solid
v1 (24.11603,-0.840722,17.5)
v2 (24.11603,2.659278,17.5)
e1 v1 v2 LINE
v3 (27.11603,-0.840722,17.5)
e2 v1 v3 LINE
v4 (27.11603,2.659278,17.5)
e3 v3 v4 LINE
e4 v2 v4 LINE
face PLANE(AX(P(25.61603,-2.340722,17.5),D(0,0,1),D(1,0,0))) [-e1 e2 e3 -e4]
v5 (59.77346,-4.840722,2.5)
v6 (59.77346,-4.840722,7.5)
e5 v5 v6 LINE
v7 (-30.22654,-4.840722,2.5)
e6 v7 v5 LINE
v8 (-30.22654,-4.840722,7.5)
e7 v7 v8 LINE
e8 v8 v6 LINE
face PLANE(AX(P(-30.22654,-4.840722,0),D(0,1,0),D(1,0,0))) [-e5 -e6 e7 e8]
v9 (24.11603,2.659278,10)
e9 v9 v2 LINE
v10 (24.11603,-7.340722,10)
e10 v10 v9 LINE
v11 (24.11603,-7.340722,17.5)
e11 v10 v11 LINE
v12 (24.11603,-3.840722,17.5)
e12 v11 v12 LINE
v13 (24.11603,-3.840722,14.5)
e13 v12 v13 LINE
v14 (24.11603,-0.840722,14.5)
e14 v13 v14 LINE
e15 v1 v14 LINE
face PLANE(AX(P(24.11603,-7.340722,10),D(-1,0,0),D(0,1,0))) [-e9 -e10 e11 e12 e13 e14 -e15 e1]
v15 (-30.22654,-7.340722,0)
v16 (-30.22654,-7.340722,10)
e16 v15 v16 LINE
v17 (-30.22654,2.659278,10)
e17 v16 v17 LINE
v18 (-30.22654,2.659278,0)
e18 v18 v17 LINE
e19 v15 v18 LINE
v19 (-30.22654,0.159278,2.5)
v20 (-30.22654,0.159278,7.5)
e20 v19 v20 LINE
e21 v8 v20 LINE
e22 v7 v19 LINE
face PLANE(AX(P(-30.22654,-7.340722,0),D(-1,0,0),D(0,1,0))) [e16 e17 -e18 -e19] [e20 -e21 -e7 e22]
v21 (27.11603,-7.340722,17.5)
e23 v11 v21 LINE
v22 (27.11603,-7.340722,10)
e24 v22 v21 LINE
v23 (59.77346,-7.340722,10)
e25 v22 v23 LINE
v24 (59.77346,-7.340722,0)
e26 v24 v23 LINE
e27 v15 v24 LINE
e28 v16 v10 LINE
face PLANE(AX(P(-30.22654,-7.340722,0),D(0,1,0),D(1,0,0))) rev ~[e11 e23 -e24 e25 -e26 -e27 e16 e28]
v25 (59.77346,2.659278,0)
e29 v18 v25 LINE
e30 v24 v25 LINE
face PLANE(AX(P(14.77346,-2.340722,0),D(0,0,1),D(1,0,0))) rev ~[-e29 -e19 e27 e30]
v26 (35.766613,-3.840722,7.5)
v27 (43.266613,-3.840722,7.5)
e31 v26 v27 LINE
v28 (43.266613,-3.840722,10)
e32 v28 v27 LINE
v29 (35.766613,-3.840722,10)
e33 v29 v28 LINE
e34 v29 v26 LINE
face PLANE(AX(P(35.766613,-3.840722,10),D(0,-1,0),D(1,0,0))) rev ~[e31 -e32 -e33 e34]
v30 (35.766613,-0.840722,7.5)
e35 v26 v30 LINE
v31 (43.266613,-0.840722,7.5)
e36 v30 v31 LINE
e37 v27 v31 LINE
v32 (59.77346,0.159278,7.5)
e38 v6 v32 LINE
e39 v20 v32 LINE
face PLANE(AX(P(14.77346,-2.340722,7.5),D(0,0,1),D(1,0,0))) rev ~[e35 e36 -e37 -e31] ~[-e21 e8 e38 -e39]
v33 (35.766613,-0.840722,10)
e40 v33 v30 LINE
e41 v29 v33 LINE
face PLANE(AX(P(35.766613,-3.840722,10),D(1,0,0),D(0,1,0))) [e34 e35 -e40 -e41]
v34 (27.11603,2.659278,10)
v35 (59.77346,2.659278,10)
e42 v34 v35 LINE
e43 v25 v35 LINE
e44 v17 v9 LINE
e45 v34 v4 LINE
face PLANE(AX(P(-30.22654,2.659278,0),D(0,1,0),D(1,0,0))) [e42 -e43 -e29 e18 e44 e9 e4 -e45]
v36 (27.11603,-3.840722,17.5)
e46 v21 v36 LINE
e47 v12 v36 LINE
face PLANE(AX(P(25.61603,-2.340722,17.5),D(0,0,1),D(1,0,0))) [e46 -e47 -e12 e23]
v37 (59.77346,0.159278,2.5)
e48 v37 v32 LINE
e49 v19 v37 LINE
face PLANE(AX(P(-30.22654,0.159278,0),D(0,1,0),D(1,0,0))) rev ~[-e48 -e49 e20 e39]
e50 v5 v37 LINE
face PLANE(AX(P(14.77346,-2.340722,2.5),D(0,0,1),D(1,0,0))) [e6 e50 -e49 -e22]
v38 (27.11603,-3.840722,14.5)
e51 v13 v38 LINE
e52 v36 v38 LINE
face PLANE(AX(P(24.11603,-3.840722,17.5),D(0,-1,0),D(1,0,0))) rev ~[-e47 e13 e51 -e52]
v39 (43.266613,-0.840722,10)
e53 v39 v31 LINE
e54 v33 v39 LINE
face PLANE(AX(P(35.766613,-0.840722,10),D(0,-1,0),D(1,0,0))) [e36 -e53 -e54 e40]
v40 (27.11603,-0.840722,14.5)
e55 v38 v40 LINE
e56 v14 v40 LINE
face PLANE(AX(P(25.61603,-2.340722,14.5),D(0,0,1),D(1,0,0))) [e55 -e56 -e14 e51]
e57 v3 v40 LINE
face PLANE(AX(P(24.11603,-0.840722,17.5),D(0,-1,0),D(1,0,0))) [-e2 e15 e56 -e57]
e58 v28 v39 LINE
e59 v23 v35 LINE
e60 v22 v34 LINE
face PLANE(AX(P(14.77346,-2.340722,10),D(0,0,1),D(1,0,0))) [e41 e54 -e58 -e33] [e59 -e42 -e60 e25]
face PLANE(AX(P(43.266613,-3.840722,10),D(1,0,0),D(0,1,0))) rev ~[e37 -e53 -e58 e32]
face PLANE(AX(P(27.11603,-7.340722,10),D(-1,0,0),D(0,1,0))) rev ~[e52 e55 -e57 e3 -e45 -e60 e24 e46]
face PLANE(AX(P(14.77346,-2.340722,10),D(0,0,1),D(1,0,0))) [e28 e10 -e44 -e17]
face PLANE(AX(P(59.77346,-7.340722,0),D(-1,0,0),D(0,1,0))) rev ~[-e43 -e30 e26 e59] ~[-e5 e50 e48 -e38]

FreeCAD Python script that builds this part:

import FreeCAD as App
import Part
import Sketcher
from FreeCAD import Vector
Q = App.Units.Quantity


def faces_at(feature, points):
    """Names of the faces that lie closest to the given points."""
    faces = feature.Shape.Faces
    near = lambda p: min(range(len(faces)), key=lambda i: faces[i].distToShape(Part.Vertex(*p))[0])
    return sorted({f"Face{near(p) + 1}" for p in points})


def add_polygon(sketch, points):
    """Adds a closed chain of lines whose ends are joined by coincident constraints."""
    first, n = sketch.GeometryCount, len(points)
    for a, b in zip(points, points[1:] + points[:1]):
        sketch.addGeometry(Part.LineSegment(App.Vector(*a, 0), App.Vector(*b, 0)), False)
    for i in range(n):
        sketch.addConstraint(Sketcher.Constraint("Coincident", first + i, 2, first + (i + 1) % n, 1))

doc = App.newDocument("Part")
params = doc.addObject("Spreadsheet::Sheet", "Params")
for row, (alias, value) in enumerate([
    ("sketch1_width", "90 mm"),
    ("sketch1_height", "10 mm"),
    ("pad1_length", "10 mm"),
    ("thickness_wall", "2.5 mm"),
    ("sketch2_height", "3 mm"),
    ("sketch2_width", "7.5 mm"),
    ("pocket1_length", "2.5 mm"),
    ("sketch3_width", "3 mm"),
    ("sketch3_height", "10 mm"),
    ("pad2_length", "7.5 mm"),
    ("sketch4_width", "3 mm"),
    ("pocket2_length", "3 mm"),
], start=1):
    params.set(f"A{row}", alias)
    params.set(f"B{row}", "=" + value)
    params.setAlias(f"B{row}", alias)

body = doc.addObject("PartDesign::Body", "Body")

# Sketch on XY plane
sketch1 = body.newObject("Sketcher::SketchObject", "Sketch")
sketch1.AttachmentSupport = (doc.getObject("XY_Plane"), [""])
sketch1.MapMode = "FlatFace"
add_polygon(sketch1, [(-30, 3), (-30, -7), (60, -7), (60, 3)])  # lines 0-3
sketch1.addConstraint([
    Sketcher.Constraint("Vertical", 0),
    Sketcher.Constraint("Horizontal", 1),
    Sketcher.Constraint("Vertical", 2),
    Sketcher.Constraint("Horizontal", 3),
    Sketcher.Constraint("DistanceX", 1, 1, 1, 2, Q("90 mm")),
    Sketcher.Constraint("DistanceY", 0, 2, 0, 1, Q("10 mm")),
    Sketcher.Constraint("DistanceX", 0, 2, -1, 1, Q("30.22654 mm")),
    Sketcher.Constraint("DistanceY", -1, 1, 2, 2, Q("2.659278 mm")),
])
sketch1.setExpression("Constraints[8]", "Params.sketch1_width")
sketch1.setExpression("Constraints[9]", "Params.sketch1_height")
pad1 = body.newObject("PartDesign::Pad", "Pad")
pad1.Profile = sketch1
pad1.setExpression("Length", "Params.pad1_length")
doc.recompute()

thickness = body.newObject("PartDesign::Thickness", "Thickness")
thickness.Base = (pad1, faces_at(pad1, [(59.773, -2.341, 5), (-30.227, -2.341, 5)]))
thickness.setExpression("Value", "Params.thickness_wall")
thickness.Reversed = True
thickness.Join = "Arc"

# Sketch on XY plane
sketch2 = body.newObject("Sketcher::SketchObject", "Sketch001")
sketch2.AttachmentSupport = (doc.getObject("XY_Plane"), [""])
sketch2.MapMode = "FlatFace"
sketch2.AttachmentOffset = App.Placement(Vector(0, 0, 10), App.Rotation())
add_polygon(sketch2, [(35.8, -0.8), (35.8, -3.8), (43.3, -3.8), (43.3, -0.8)])  # lines 0-3
sketch2.addConstraint([
    Sketcher.Constraint("Vertical", 0),
    Sketcher.Constraint("Horizontal", 1),
    Sketcher.Constraint("Vertical", 2),
    Sketcher.Constraint("Horizontal", 3),
    Sketcher.Constraint("DistanceY", 0, 2, 0, 1, Q("3 mm")),
    Sketcher.Constraint("DistanceX", 1, 1, 1, 2, Q("7.5 mm")),
    Sketcher.Constraint("DistanceY", 0, 2, -1, 1, Q("3.840722 mm")),
    Sketcher.Constraint("DistanceX", -1, 1, 0, 2, Q("35.766613 mm")),
])
sketch2.setExpression("Constraints[8]", "Params.sketch2_height")
sketch2.setExpression("Constraints[9]", "Params.sketch2_width")
pocket1 = body.newObject("PartDesign::Pocket", "Pocket")
pocket1.Profile = sketch2
pocket1.setExpression("Length", "Params.pocket1_length")

# Sketch on XY plane
sketch3 = body.newObject("Sketcher::SketchObject", "Sketch002")
sketch3.AttachmentSupport = (doc.getObject("XY_Plane"), [""])
sketch3.MapMode = "FlatFace"
sketch3.AttachmentOffset = App.Placement(Vector(0, 0, 10), App.Rotation())
add_polygon(sketch3, [(24.1, 2.7), (24.1, -7.3), (27.1, -7.3), (27.1, 2.7)])  # lines 0-3
sketch3.addConstraint([
    Sketcher.Constraint("Vertical", 0),
    Sketcher.Constraint("Horizontal", 1),
    Sketcher.Constraint("Vertical", 2),
    Sketcher.Constraint("Horizontal", 3),
    Sketcher.Constraint("DistanceX", 1, 1, 1, 2, Q("3 mm")),
    Sketcher.Constraint("DistanceY", 0, 2, 0, 1, Q("10 mm")),
    Sketcher.Constraint("DistanceX", -1, 1, 0, 2, Q("24.11603 mm")),
    Sketcher.Constraint("DistanceY", -1, 1, 2, 2, Q("2.659278 mm")),
])
sketch3.setExpression("Constraints[8]", "Params.sketch3_width")
sketch3.setExpression("Constraints[9]", "Params.sketch3_height")
pad2 = body.newObject("PartDesign::Pad", "Pad001")
pad2.Profile = sketch3
pad2.setExpression("Length", "Params.pad2_length")

# Sketch on XY plane
sketch4 = body.newObject("Sketcher::SketchObject", "Sketch003")
sketch4.AttachmentSupport = (doc.getObject("XY_Plane"), [""])
sketch4.MapMode = "FlatFace"
sketch4.AttachmentOffset = App.Placement(Vector(0, 0, 17.5), App.Rotation())
add_polygon(sketch4, [(24.1, -0.8), (24.1, -3.8), (27.1, -3.8), (27.1, -0.8)])  # lines 0-3
sketch4.addConstraint([
    Sketcher.Constraint("Vertical", 0),
    Sketcher.Constraint("Horizontal", 1),
    Sketcher.Constraint("Vertical", 2),
    Sketcher.Constraint("Horizontal", 3),
    Sketcher.Constraint("Equal", 3, 0),
    Sketcher.Constraint("DistanceX", 1, 1, 1, 2, Q("3 mm")),
    Sketcher.Constraint("DistanceX", -1, 1, 0, 2, Q("24.11603 mm")),
    Sketcher.Constraint("DistanceY", 0, 2, -1, 1, Q("3.840722 mm")),
])
sketch4.setExpression("Constraints[9]", "Params.sketch4_width")
pocket2 = body.newObject("PartDesign::Pocket", "Pocket001")
pocket2.Profile = sketch4
pocket2.setExpression("Length", "Params.pocket2_length")

doc.recompute()
